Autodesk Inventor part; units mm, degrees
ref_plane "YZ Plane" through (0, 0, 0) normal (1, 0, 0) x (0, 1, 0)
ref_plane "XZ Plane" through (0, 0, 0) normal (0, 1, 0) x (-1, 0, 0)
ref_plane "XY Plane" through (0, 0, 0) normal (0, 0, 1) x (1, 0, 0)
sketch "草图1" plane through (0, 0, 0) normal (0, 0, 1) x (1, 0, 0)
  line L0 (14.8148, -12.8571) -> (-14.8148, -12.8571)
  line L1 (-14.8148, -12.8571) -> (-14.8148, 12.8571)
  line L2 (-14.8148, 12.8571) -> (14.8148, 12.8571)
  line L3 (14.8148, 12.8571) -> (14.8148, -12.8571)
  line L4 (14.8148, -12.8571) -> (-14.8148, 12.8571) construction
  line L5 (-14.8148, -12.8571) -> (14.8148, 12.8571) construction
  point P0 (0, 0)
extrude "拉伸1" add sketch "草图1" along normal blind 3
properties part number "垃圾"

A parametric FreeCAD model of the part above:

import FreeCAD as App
import Part
import Sketcher
from FreeCAD import Vector
Q = App.Units.Quantity


def add_polygon(sketch, points):
    """Adds a closed chain of lines whose ends are joined by coincident constraints."""
    first, n = sketch.GeometryCount, len(points)
    for a, b in zip(points, points[1:] + points[:1]):
        sketch.addGeometry(Part.LineSegment(App.Vector(*a, 0), App.Vector(*b, 0)), False)
    for i in range(n):
        sketch.addConstraint(Sketcher.Constraint("Coincident", first + i, 2, first + (i + 1) % n, 1))

doc = App.newDocument("Part")
body = doc.addObject("PartDesign::Body", "Body")

sketch1 = body.newObject("Sketcher::SketchObject", "Sketch")
sketch1.AttachmentSupport = (doc.getObject("XY_Plane"), [""])
sketch1.MapMode = "FlatFace"
add_polygon(sketch1, [(-14.8148, -12.8571), (14.8148, -12.8571), (14.8148, 12.8571), (-14.8148, 12.8571)])
sketch1.addConstraint([
    Sketcher.Constraint("Horizontal", 0),
    Sketcher.Constraint("Vertical", 1),
    Sketcher.Constraint("Horizontal", 2),
    Sketcher.Constraint("Vertical", 3),
    Sketcher.Constraint("Symmetric", 0, 2, 2, 2, -1, 1),
    Sketcher.Constraint("DistanceX", 0, 1, 0, 2, Q("29.6296 mm")),
    Sketcher.Constraint("DistanceY", 1, 1, 1, 2, Q("25.7142 mm")),
])
pad1 = body.newObject("PartDesign::Pad", "Pad")
pad1.Profile = sketch1
pad1.Length = 3

doc.recompute()
